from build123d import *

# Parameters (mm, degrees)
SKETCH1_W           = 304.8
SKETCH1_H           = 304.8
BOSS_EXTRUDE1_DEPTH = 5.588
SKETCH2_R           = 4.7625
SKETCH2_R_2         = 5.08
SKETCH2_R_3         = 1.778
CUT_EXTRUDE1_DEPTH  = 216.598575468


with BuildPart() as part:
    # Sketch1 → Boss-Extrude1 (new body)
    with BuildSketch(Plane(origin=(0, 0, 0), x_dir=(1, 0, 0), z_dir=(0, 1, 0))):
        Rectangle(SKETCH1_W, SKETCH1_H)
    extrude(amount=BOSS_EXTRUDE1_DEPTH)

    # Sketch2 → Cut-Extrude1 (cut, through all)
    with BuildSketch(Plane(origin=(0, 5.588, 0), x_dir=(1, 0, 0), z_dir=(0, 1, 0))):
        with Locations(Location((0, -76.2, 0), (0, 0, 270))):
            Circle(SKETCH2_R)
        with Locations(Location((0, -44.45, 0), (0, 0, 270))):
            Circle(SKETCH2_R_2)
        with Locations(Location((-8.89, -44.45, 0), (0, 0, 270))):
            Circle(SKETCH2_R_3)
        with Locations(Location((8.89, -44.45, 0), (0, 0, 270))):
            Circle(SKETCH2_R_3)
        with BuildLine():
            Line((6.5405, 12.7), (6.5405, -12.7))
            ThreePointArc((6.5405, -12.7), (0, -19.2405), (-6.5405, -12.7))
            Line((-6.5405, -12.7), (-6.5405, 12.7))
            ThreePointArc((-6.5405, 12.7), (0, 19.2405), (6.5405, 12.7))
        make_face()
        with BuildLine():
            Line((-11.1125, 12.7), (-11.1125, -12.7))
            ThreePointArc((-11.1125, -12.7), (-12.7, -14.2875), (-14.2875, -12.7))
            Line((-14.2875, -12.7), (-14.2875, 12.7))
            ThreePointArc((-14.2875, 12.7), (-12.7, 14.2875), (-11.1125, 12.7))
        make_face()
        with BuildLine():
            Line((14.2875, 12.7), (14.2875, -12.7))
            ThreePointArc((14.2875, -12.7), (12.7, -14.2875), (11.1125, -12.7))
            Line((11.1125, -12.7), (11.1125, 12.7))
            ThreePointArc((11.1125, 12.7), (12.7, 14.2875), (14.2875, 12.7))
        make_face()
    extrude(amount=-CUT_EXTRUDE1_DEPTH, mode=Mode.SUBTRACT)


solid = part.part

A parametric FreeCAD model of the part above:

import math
import FreeCAD as App
import Part
import Sketcher

V = App.Vector
Q = App.Units.Quantity

doc = App.newDocument("Part")
body = doc.addObject("PartDesign::Body", "Body")

sketch1 = body.newObject("Sketcher::SketchObject", "Sketch")
sketch1.AttachmentSupport = (doc.getObject("XZ_Plane"), [""])
sketch1.MapMode = "FlatFace"
sketch1.addGeometry([
    Part.LineSegment(V(-152, -152, 0), V(-152, 152, 0)),
    Part.LineSegment(V(-152, 152, 0), V(152, 152, 0)),
    Part.LineSegment(V(152, 152, 0), V(152, -152, 0)),
    Part.LineSegment(V(152, -152, 0), V(-152, -152, 0)),
], False)
sketch1.addConstraint([
    Sketcher.Constraint("Coincident", 0, 2, 1, 1),
    Sketcher.Constraint("Coincident", 1, 2, 2, 1),
    Sketcher.Constraint("Coincident", 2, 2, 3, 1),
    Sketcher.Constraint("Coincident", 3, 2, 0, 1),
    Sketcher.Constraint("Vertical", 0),
    Sketcher.Constraint("Horizontal", 1),
    Sketcher.Constraint("Vertical", 2),
    Sketcher.Constraint("Horizontal", 3),
    Sketcher.Constraint("Symmetric", 0, 2, 2, 2, -1, 1),
    Sketcher.Constraint("Equal", 3, 0),
    Sketcher.Constraint("DistanceX", 1, 1, 1, 2, Q("12 in")),
])
pad1 = body.newObject("PartDesign::Pad", "Pad")
pad1.Profile = sketch1
pad1.Length = Q("0.22 in")
pad1.Reversed = True

sketch2 = body.newObject("Sketcher::SketchObject", "Sketch001")
sketch2.AttachmentSupport = (doc.getObject("XZ_Plane"), [""])
sketch2.MapMode = "FlatFace"
sketch2.AttachmentOffset = App.Placement(V(0, 0, -0.22 * 25.4), App.Rotation())
sketch2.addGeometry([
    Part.Circle(V(0, 76.2, 0), V(0, 0, 1), 4.8),
    Part.Circle(V(0, 44.5, 0), V(0, 0, 1), 5.1),
    Part.Circle(V(-8.9, 44.5, 0), V(0, 0, 1), 1.8),
    Part.Circle(V(8.9, 44.5, 0), V(0, 0, 1), 1.8),
    Part.LineSegment(V(6.5, 12.7, 0), V(6.5, -12.7, 0)),
    Part.ArcOfCircle(Part.Circle(V(0, -12.7, 0), V(0, 0, 1), 6.5), math.radians(180), math.radians(360)),
    Part.LineSegment(V(-6.5, -12.7, 0), V(-6.5, 12.7, 0)),
    Part.ArcOfCircle(Part.Circle(V(0, 12.7, 0), V(0, 0, 1), 6.5), math.radians(0), math.radians(180)),
    Part.LineSegment(V(-11.1, 12.7, 0), V(-11.1, -12.7, 0)),
    Part.ArcOfCircle(Part.Circle(V(-12.7, -12.7, 0), V(0, 0, 1), 1.6), math.radians(180), math.radians(360)),
    Part.LineSegment(V(-14.3, -12.7, 0), V(-14.3, 12.7, 0)),
    Part.ArcOfCircle(Part.Circle(V(-12.7, 12.7, 0), V(0, 0, 1), 1.6), math.radians(0), math.radians(180)),
    Part.LineSegment(V(14.3, 12.7, 0), V(14.3, -12.7, 0)),
    Part.ArcOfCircle(Part.Circle(V(12.7, -12.7, 0), V(0, 0, 1), 1.6), math.radians(180), math.radians(360)),
    Part.LineSegment(V(11.1, -12.7, 0), V(11.1, 12.7, 0)),
    Part.ArcOfCircle(Part.Circle(V(12.7, 12.7, 0), V(0, 0, 1), 1.6), math.radians(0), math.radians(180)),
], False)
sketch2.addConstraint([
    Sketcher.Constraint("Tangent", 4, 2, 5, 2),
    Sketcher.Constraint("Tangent", 5, 1, 6, 1),
    Sketcher.Constraint("Tangent", 6, 2, 7, 2),
    Sketcher.Constraint("Tangent", 7, 1, 4, 1),
    Sketcher.Constraint("Tangent", 8, 2, 9, 2),
    Sketcher.Constraint("Tangent", 9, 1, 10, 1),
    Sketcher.Constraint("Tangent", 10, 2, 11, 2),
    Sketcher.Constraint("Tangent", 11, 1, 8, 1),
    Sketcher.Constraint("Tangent", 12, 2, 13, 2),
    Sketcher.Constraint("Tangent", 13, 1, 14, 1),
    Sketcher.Constraint("Tangent", 14, 2, 15, 2),
    Sketcher.Constraint("Tangent", 15, 1, 12, 1),
    Sketcher.Constraint("Vertical", 4),
    Sketcher.Constraint("Vertical", 6),
    Sketcher.Constraint("Vertical", 8),
    Sketcher.Constraint("Vertical", 10),
    Sketcher.Constraint("Vertical", 12),
    Sketcher.Constraint("Vertical", 14),
    Sketcher.Constraint("Equal", 2, 3),
    Sketcher.Constraint("Equal", 11, 13),
    Sketcher.Constraint("Symmetric", 5, 3, 7, 3, -1, 1),
    Sketcher.Constraint("Symmetric", 11, 3, 13, 3, -1, 1),
    Sketcher.Constraint("Symmetric", 2, 3, 3, 3, -2),
    Sketcher.Constraint("PointOnObject", 0, 3, -2),
    Sketcher.Constraint("PointOnObject", 1, 3, -2),
    Sketcher.Constraint("Horizontal", 1, 3, 2, 3),
    Sketcher.Constraint("Horizontal", 5, 3, 9, 3),
    Sketcher.Constraint("Horizontal", 7, 3, 11, 3),
    Sketcher.Constraint("Horizontal", 11, 3, 15, 3),
    Sketcher.Constraint("Diameter", 1, Q("0.4 in")),
    Sketcher.Constraint("Diameter", 2, Q("0.14 in")),
    Sketcher.Constraint("DistanceY", 4, 2, 4, 1, Q("1 in")),
    Sketcher.Constraint("Diameter", 0, Q("0.375 in")),
    Sketcher.Constraint("DistanceY", -1, 1, 0, 3, Q("3 in")),
    Sketcher.Constraint("Radius", 9, Q("0.0625 in")),
    Sketcher.Constraint("DistanceX", 9, 3, 13, 3, Q("1 in")),
    Sketcher.Constraint("Radius", 5, Q("0.2575 in")),
    Sketcher.Constraint("DistanceX", 2, 3, 3, 3, Q("0.7 in")),
    Sketcher.Constraint("DistanceY", -1, 1, 1, 3, Q("1.75 in")),
])
pocket1 = body.newObject("PartDesign::Pocket", "Pocket")
pocket1.Profile = sketch2
pocket1.Type = "ThroughAll"
pocket1.Reversed = True

doc.recompute()
